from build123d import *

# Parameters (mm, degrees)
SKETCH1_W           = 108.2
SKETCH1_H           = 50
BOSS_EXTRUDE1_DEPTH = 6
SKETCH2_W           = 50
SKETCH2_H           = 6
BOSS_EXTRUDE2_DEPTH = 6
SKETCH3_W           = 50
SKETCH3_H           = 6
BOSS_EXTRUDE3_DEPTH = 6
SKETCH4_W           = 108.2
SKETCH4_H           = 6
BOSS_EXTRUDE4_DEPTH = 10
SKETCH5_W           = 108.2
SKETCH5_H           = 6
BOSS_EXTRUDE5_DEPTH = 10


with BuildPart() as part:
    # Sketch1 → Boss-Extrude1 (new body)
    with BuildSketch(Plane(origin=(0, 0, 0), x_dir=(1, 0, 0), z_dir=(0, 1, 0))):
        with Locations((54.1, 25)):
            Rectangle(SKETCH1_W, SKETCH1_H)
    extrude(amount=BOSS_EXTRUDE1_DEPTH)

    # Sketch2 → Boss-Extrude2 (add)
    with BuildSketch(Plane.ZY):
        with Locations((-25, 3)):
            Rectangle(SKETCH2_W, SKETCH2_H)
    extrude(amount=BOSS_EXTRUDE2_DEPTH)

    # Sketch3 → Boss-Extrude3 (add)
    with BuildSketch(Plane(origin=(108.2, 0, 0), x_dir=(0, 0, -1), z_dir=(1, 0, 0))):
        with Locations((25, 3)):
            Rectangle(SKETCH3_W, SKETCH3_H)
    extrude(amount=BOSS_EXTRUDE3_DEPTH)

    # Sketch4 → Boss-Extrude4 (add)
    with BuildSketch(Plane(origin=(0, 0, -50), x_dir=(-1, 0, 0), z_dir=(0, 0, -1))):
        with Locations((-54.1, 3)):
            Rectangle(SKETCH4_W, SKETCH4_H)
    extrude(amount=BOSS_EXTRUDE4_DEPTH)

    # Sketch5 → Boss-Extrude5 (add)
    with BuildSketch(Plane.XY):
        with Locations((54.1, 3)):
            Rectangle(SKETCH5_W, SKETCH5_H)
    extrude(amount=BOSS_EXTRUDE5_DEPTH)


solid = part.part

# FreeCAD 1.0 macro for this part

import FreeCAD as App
import Part
import Sketcher
from FreeCAD import Vector
Q = App.Units.Quantity


def add_polygon(sketch, points):
    """Adds a closed chain of lines whose ends are joined by coincident constraints."""
    first, n = sketch.GeometryCount, len(points)
    for a, b in zip(points, points[1:] + points[:1]):
        sketch.addGeometry(Part.LineSegment(App.Vector(*a, 0), App.Vector(*b, 0)), False)
    for i in range(n):
        sketch.addConstraint(Sketcher.Constraint("Coincident", first + i, 2, first + (i + 1) % n, 1))

doc = App.newDocument("Part")
body = doc.addObject("PartDesign::Body", "Body")

# Sketch on XZ plane
sketch1 = body.newObject("Sketcher::SketchObject", "Sketch")
sketch1.AttachmentSupport = (doc.getObject("XZ_Plane"), [""])
sketch1.MapMode = "FlatFace"
add_polygon(sketch1, [(0, -50), (0, 0), (108, 0), (108, -50)])  # lines 0-3
sketch1.addConstraint([
    Sketcher.Constraint("Vertical", 0),
    Sketcher.Constraint("Horizontal", 1),
    Sketcher.Constraint("Vertical", 2),
    Sketcher.Constraint("Horizontal", 3),
    Sketcher.Constraint("Coincident", 0, 2, -1, 1),
    Sketcher.Constraint("DistanceY", 0, 1, 0, 2, Q("50 mm")),
    Sketcher.Constraint("DistanceX", 1, 1, 1, 2, Q("108.2 mm")),
])
pad1 = body.newObject("PartDesign::Pad", "Pad")
pad1.Profile = sketch1
pad1.Length = 6
pad1.Reversed = True

# Sketch on YZ plane
sketch2 = body.newObject("Sketcher::SketchObject", "Sketch001")
sketch2.AttachmentSupport = (doc.getObject("YZ_Plane"), [""])
sketch2.MapMode = "FlatFace"
add_polygon(sketch2, [(6, -50), (0, -50), (0, 0), (6, 0)])  # lines 0-3
sketch2.addConstraint([
    Sketcher.Constraint("Horizontal", 0),
    Sketcher.Constraint("Vertical", 1),
    Sketcher.Constraint("Horizontal", 2),
    Sketcher.Constraint("Vertical", 3),
    Sketcher.Constraint("Coincident", 1, 2, -1, 1),
    Sketcher.Constraint("DistanceX", 0, 2, 0, 1, Q("6 mm")),
    Sketcher.Constraint("DistanceY", 1, 1, 1, 2, Q("50 mm")),
])
pad2 = body.newObject("PartDesign::Pad", "Pad001")
pad2.Profile = sketch2
pad2.Length = 6
pad2.Reversed = True

# Sketch on YZ plane
sketch3 = body.newObject("Sketcher::SketchObject", "Sketch002")
sketch3.AttachmentSupport = (doc.getObject("YZ_Plane"), [""])
sketch3.MapMode = "FlatFace"
sketch3.AttachmentOffset = App.Placement(Vector(0, 0, 108.2), App.Rotation())
add_polygon(sketch3, [(6, 0), (0, 0), (0, -50), (6, -50)])  # lines 0-3
sketch3.addConstraint([
    Sketcher.Constraint("Horizontal", 0),
    Sketcher.Constraint("Vertical", 1),
    Sketcher.Constraint("Horizontal", 2),
    Sketcher.Constraint("Vertical", 3),
    Sketcher.Constraint("Coincident", 0, 2, -1, 1),
    Sketcher.Constraint("DistanceX", 0, 2, 0, 1, Q("6 mm")),
    Sketcher.Constraint("DistanceY", 1, 2, 1, 1, Q("50 mm")),
])
pad3 = body.newObject("PartDesign::Pad", "Pad002")
pad3.Profile = sketch3
pad3.Length = 6

# Sketch on XY plane
sketch4 = body.newObject("Sketcher::SketchObject", "Sketch003")
sketch4.AttachmentSupport = (doc.getObject("XY_Plane"), [""])
sketch4.MapMode = "FlatFace"
sketch4.AttachmentOffset = App.Placement(Vector(0, 0, -50), App.Rotation())
add_polygon(sketch4, [(108, 6), (108, 0), (0, 0), (0, 6)])  # lines 0-3
sketch4.addConstraint([
    Sketcher.Constraint("Vertical", 0),
    Sketcher.Constraint("Horizontal", 1),
    Sketcher.Constraint("Vertical", 2),
    Sketcher.Constraint("Horizontal", 3),
    Sketcher.Constraint("Coincident", 1, 2, -1, 1),
    Sketcher.Constraint("DistanceY", 0, 2, 0, 1, Q("6 mm")),
    Sketcher.Constraint("DistanceX", 1, 2, 1, 1, Q("108.2 mm")),
])
pad4 = body.newObject("PartDesign::Pad", "Pad003")
pad4.Profile = sketch4
pad4.Length = 10
pad4.Reversed = True

# Sketch on XY plane
sketch5 = body.newObject("Sketcher::SketchObject", "Sketch004")
sketch5.AttachmentSupport = (doc.getObject("XY_Plane"), [""])
sketch5.MapMode = "FlatFace"
add_polygon(sketch5, [(0, 6), (0, 0), (108, 0), (108, 6)])  # lines 0-3
sketch5.addConstraint([
    Sketcher.Constraint("Vertical", 0),
    Sketcher.Constraint("Horizontal", 1),
    Sketcher.Constraint("Vertical", 2),
    Sketcher.Constraint("Horizontal", 3),
    Sketcher.Constraint("Coincident", 0, 2, -1, 1),
    Sketcher.Constraint("DistanceY", 0, 2, 0, 1, Q("6 mm")),
    Sketcher.Constraint("DistanceX", 1, 1, 1, 2, Q("108.2 mm")),
])
pad5 = body.newObject("PartDesign::Pad", "Pad004")
pad5.Profile = sketch5
pad5.Length = 10

doc.recompute()
